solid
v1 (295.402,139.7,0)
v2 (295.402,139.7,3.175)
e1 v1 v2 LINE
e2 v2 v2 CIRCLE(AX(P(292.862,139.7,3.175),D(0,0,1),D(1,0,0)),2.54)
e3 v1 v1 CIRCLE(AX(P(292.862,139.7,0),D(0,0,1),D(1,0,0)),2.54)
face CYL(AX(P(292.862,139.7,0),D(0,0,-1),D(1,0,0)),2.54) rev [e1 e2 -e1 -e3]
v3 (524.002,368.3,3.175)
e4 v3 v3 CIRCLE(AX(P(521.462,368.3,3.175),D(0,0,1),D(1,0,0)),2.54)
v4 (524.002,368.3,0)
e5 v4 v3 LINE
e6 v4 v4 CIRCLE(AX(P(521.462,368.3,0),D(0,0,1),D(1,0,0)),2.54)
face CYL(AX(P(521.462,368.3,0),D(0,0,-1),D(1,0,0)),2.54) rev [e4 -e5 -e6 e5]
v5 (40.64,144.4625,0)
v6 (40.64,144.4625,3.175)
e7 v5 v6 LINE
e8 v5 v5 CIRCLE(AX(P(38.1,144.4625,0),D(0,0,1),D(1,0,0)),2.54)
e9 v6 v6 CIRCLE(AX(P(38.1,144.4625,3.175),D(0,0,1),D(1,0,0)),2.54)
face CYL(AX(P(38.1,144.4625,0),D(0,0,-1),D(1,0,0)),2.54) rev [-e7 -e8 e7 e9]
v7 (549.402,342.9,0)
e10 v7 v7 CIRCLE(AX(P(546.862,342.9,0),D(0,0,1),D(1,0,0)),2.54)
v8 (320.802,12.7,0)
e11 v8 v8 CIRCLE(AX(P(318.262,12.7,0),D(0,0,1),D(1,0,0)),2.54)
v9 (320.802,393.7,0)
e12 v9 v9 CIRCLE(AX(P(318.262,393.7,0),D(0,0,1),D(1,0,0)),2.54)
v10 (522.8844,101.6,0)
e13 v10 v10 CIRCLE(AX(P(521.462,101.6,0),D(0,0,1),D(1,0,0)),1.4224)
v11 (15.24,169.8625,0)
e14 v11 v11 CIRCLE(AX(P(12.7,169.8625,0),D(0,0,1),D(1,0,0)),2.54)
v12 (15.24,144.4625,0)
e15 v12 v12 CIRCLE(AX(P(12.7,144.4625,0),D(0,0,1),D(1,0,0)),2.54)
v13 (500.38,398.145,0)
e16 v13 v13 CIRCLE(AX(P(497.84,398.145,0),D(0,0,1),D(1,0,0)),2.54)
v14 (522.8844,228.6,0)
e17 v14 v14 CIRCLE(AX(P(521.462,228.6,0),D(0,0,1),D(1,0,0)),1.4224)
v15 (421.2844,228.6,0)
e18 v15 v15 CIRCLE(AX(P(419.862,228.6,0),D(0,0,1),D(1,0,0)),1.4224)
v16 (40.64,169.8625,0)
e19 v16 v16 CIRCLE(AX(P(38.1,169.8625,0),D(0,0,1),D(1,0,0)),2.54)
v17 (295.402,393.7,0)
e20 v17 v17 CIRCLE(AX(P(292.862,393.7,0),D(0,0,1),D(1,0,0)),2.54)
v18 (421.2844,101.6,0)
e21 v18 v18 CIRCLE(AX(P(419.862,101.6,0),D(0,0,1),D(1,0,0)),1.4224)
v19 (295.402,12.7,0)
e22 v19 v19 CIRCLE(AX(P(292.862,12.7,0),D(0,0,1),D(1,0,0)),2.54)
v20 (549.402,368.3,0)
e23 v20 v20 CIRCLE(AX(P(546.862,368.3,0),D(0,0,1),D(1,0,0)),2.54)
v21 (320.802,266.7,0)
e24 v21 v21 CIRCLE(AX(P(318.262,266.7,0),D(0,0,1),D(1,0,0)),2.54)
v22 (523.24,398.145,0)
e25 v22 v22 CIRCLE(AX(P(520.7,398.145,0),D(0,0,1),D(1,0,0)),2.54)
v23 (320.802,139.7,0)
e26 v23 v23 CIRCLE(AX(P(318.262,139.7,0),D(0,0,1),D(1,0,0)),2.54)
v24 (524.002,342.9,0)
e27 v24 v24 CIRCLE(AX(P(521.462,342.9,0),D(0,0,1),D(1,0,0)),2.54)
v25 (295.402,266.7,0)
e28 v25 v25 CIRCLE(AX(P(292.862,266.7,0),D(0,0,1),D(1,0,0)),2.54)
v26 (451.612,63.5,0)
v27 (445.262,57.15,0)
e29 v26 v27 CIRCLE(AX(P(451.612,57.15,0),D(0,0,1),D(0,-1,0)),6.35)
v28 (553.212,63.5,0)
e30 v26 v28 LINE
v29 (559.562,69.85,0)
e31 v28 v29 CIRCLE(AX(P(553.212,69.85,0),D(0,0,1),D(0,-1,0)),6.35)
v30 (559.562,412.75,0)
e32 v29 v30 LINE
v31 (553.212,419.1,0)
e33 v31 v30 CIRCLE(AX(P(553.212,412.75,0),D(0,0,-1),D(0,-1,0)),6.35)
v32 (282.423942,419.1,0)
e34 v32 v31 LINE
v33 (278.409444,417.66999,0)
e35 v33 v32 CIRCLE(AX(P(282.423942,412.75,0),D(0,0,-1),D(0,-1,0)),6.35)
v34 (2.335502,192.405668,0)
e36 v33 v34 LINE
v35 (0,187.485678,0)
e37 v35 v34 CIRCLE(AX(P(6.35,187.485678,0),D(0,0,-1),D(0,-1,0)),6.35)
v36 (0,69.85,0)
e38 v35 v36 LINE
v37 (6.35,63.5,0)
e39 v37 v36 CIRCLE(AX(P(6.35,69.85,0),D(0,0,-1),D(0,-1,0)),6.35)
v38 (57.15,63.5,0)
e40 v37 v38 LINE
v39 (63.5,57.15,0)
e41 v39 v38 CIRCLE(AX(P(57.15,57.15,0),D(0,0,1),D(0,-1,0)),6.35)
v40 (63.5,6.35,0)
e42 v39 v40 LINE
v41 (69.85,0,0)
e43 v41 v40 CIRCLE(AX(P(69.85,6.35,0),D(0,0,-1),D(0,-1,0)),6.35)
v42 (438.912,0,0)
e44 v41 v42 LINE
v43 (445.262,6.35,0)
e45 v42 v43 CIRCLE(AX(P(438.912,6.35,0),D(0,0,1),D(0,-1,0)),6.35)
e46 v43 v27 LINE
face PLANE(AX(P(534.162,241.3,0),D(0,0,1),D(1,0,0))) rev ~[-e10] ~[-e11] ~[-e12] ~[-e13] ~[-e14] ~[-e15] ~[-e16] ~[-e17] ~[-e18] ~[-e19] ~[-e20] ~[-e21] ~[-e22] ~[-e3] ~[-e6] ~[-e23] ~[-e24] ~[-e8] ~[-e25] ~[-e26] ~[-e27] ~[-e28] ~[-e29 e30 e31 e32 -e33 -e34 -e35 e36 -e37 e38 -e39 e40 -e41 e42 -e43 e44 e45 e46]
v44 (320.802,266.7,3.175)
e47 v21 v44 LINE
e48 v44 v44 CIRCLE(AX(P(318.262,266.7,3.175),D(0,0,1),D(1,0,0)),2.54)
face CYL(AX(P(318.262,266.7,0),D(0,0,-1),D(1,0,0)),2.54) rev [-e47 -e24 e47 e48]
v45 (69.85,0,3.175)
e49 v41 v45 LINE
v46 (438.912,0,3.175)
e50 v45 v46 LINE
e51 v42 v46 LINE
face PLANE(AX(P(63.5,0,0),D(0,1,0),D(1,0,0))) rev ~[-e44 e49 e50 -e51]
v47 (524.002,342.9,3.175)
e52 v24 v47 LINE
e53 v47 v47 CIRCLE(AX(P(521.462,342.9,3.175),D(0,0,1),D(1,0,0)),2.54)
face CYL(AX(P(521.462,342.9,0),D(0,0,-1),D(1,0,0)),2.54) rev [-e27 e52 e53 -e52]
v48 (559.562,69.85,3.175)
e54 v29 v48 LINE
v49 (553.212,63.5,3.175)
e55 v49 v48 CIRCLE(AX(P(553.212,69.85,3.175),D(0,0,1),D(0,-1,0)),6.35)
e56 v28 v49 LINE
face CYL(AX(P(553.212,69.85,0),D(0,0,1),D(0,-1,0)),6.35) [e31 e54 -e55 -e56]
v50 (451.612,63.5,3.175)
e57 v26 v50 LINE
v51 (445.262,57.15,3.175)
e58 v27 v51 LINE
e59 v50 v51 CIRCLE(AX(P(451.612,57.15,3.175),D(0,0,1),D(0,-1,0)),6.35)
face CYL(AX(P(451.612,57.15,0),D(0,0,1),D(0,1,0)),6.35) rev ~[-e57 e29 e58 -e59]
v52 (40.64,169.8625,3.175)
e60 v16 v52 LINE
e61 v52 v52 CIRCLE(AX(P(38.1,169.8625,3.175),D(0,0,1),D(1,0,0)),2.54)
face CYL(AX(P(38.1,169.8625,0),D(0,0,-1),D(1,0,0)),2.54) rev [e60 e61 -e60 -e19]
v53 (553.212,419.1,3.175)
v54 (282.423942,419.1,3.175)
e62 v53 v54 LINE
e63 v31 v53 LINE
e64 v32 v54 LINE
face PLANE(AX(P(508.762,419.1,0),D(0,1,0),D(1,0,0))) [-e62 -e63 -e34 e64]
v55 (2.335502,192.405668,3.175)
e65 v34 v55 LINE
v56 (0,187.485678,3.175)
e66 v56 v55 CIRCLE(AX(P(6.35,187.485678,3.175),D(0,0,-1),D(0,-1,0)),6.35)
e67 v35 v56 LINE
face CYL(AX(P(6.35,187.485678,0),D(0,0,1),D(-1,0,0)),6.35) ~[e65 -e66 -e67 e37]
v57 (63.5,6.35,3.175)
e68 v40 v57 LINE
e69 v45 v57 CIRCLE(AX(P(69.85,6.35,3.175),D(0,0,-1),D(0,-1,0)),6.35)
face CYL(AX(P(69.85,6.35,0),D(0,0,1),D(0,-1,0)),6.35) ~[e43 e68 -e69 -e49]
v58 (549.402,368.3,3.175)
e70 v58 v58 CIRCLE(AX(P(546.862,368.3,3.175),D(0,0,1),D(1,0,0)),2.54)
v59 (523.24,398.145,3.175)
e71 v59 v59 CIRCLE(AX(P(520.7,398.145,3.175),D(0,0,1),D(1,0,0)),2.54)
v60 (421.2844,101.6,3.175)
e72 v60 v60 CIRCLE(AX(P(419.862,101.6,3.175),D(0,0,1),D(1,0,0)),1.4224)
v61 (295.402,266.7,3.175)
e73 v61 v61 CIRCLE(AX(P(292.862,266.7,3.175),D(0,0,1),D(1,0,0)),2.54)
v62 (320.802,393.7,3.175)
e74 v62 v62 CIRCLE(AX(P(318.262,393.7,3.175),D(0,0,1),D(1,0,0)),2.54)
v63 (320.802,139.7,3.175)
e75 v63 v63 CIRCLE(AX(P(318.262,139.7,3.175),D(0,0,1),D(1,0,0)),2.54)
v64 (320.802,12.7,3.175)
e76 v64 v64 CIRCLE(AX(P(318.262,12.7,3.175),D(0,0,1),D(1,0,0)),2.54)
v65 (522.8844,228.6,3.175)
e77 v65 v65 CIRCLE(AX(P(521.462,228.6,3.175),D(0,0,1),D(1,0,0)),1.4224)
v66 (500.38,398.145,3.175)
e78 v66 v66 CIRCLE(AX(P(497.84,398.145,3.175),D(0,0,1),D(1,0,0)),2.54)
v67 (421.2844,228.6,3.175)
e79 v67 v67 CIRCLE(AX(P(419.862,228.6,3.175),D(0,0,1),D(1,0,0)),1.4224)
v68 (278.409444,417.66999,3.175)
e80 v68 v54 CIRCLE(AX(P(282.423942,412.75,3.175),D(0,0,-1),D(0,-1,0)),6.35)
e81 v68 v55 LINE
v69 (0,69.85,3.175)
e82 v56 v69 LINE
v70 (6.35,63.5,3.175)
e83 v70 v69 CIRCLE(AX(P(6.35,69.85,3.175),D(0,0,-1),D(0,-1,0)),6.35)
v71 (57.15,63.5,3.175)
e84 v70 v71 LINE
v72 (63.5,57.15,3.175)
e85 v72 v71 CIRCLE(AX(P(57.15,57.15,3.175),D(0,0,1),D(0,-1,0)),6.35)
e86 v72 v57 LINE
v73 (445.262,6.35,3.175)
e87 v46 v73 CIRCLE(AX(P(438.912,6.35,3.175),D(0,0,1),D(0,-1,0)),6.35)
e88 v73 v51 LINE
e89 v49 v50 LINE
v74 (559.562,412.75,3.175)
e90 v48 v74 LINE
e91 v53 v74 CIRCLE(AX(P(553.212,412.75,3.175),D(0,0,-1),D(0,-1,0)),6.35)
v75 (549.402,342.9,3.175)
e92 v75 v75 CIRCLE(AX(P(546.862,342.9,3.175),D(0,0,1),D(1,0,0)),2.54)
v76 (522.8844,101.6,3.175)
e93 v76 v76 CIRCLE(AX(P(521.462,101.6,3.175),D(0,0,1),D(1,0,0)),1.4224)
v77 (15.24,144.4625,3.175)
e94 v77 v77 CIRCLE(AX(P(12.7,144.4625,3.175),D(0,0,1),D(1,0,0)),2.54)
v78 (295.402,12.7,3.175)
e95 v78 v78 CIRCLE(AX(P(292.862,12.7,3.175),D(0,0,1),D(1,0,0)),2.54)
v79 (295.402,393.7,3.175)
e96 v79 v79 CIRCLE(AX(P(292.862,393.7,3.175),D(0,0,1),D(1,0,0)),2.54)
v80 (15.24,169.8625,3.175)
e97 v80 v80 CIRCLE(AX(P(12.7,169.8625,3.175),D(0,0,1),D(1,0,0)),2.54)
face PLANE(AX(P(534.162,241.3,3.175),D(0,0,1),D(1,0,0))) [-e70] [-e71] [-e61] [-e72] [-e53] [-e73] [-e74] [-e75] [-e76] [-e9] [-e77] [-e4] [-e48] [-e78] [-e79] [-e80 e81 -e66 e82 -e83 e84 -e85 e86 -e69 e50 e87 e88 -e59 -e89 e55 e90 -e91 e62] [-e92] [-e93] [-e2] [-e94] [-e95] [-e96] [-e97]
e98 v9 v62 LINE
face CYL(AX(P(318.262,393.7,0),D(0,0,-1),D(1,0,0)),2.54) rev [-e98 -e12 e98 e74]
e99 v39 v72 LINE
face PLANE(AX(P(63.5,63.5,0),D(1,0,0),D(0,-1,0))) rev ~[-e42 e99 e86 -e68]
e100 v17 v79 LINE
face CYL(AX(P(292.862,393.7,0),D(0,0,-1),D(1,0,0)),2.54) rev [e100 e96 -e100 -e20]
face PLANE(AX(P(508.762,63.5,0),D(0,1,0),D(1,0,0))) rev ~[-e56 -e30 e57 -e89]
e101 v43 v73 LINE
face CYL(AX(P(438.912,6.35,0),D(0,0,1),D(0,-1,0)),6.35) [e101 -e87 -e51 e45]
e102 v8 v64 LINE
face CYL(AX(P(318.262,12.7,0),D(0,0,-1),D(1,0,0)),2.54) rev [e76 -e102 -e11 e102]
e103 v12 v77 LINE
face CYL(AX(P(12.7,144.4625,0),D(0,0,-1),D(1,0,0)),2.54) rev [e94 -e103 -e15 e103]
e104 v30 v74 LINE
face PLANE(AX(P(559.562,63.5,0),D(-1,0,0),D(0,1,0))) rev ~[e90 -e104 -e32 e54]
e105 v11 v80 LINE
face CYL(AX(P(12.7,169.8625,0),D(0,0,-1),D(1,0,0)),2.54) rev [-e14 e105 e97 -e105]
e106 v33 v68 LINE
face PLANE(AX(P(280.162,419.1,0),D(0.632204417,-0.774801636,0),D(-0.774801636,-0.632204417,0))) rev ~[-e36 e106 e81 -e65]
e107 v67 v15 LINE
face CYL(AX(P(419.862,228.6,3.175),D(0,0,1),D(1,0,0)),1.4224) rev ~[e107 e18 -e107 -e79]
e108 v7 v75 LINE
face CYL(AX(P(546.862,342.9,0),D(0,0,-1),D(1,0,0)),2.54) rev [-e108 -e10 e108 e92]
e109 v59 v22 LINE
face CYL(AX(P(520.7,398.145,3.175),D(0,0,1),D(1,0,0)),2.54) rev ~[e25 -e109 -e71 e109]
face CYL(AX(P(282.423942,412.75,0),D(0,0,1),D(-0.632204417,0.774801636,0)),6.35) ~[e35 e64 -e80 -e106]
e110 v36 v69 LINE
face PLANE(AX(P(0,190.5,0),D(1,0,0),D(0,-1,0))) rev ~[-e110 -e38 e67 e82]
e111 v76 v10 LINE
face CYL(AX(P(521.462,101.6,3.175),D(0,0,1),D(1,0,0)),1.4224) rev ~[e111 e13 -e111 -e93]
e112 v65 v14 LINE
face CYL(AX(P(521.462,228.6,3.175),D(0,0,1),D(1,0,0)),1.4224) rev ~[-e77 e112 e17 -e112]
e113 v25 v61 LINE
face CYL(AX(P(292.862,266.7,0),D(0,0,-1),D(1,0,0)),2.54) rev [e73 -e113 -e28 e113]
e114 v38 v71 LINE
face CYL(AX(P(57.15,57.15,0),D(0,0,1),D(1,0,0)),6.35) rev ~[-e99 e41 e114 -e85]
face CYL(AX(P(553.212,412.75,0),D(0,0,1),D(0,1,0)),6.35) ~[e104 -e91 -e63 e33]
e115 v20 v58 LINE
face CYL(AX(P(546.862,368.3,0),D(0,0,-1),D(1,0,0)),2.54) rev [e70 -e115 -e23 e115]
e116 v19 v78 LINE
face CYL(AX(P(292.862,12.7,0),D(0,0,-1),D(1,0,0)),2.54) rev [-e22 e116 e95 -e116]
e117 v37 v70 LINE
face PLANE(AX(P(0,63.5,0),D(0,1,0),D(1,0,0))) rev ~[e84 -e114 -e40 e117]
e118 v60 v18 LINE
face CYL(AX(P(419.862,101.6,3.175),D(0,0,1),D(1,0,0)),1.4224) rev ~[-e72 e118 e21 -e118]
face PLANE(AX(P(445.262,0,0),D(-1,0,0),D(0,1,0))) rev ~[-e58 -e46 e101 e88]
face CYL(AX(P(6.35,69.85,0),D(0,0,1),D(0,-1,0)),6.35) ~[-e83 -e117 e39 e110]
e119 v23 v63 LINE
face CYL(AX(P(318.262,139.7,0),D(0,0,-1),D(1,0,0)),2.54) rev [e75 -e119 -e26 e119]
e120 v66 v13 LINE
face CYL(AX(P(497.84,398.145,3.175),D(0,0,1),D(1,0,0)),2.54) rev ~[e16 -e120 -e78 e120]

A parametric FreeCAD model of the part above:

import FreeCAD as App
import Part
import Sketcher
Q = App.Units.Quantity


def edges_at(feature, points):
    """Names of the edges that pass closest to the given points."""
    edges = feature.Shape.Edges
    near = lambda p: min(range(len(edges)), key=lambda i: edges[i].distToShape(Part.Vertex(*p))[0])
    return sorted({f"Edge{near(p) + 1}" for p in points})


def add_polygon(sketch, points):
    """Adds a closed chain of lines whose ends are joined by coincident constraints."""
    first, n = sketch.GeometryCount, len(points)
    for a, b in zip(points, points[1:] + points[:1]):
        sketch.addGeometry(Part.LineSegment(App.Vector(*a, 0), App.Vector(*b, 0)), False)
    for i in range(n):
        sketch.addConstraint(Sketcher.Constraint("Coincident", first + i, 2, first + (i + 1) % n, 1))

doc = App.newDocument("Part")
params = doc.addObject("Spreadsheet::Sheet", "Params")
for row, (alias, value) in enumerate([
    ("sketch1_diameter", "0.2 in"),
    ("sketch1_width", "11 in"),
    ("sketch1_height", "5 in"),
    ("sketch1_height2", "14 in"),
    ("sketch1_width2", "2.5 in"),
    ("pad1_length", "0.125 in"),
    ("fillet_radius", "0.25 in"),
    ("sketch2_diameter", "0.112 in"),
    ("sketch3_diameter", "0.2 in"),
], start=1):
    params.set(f"A{row}", alias)
    params.set(f"B{row}", "=" + value)
    params.setAlias(f"B{row}", alias)

body = doc.addObject("PartDesign::Body", "Body")

# Sketch on XY plane
sketch1 = body.newObject("Sketcher::SketchObject", "Sketch")
sketch1.AttachmentSupport = (doc.getObject("XY_Plane"), [""])
sketch1.MapMode = "FlatFace"
add_polygon(sketch1, [(0, 190.5), (0, 63.5), (63.5, 63.5), (63.5, 0), (445.3, 0), (445.3, 63.5), (559.6, 63.5), (559.6, 419.1), (280.2, 419.1)])  # lines 0-8
sketch1.addGeometry(Part.Circle(App.Vector(12.7, 144.5, 0), App.Vector(0, 0, 1), 2.5), False)  # 9
sketch1.addGeometry(Part.Circle(App.Vector(38.1, 144.5, 0), App.Vector(0, 0, 1), 2.5), False)  # 10
sketch1.addGeometry(Part.Circle(App.Vector(12.7, 169.9, 0), App.Vector(0, 0, 1), 2.5), False)  # 11
sketch1.addGeometry(Part.Circle(App.Vector(38.1, 169.9, 0), App.Vector(0, 0, 1), 2.5), False)  # 12
sketch1.addGeometry(Part.Circle(App.Vector(292.9, 12.7, 0), App.Vector(0, 0, 1), 2.5), False)  # 13
sketch1.addGeometry(Part.Circle(App.Vector(318.3, 12.7, 0), App.Vector(0, 0, 1), 2.5), False)  # 14
sketch1.addGeometry(Part.Circle(App.Vector(292.9, 139.7, 0), App.Vector(0, 0, 1), 2.5), False)  # 15
sketch1.addGeometry(Part.Circle(App.Vector(318.3, 139.7, 0), App.Vector(0, 0, 1), 2.5), False)  # 16
sketch1.addGeometry(Part.Circle(App.Vector(292.9, 266.7, 0), App.Vector(0, 0, 1), 2.5), False)  # 17
sketch1.addGeometry(Part.Circle(App.Vector(318.3, 266.7, 0), App.Vector(0, 0, 1), 2.5), False)  # 18
sketch1.addGeometry(Part.Circle(App.Vector(292.9, 393.7, 0), App.Vector(0, 0, 1), 2.5), False)  # 19
sketch1.addGeometry(Part.Circle(App.Vector(318.3, 393.7, 0), App.Vector(0, 0, 1), 2.5), False)  # 20
sketch1.addGeometry(Part.Circle(App.Vector(546.9, 368.3, 0), App.Vector(0, 0, 1), 2.5), False)  # 21
sketch1.addGeometry(Part.Circle(App.Vector(521.5, 342.9, 0), App.Vector(0, 0, 1), 2.5), False)  # 22
sketch1.addGeometry(Part.Circle(App.Vector(546.9, 342.9, 0), App.Vector(0, 0, 1), 2.5), False)  # 23
sketch1.addGeometry(Part.Circle(App.Vector(521.5, 368.3, 0), App.Vector(0, 0, 1), 2.5), False)  # 24
sketch1.addConstraint([
    Sketcher.Constraint("Vertical", 0),
    Sketcher.Constraint("Horizontal", 1),
    Sketcher.Constraint("Vertical", 2),
    Sketcher.Constraint("Horizontal", 3),
    Sketcher.Constraint("Vertical", 4),
    Sketcher.Constraint("Horizontal", 5),
    Sketcher.Constraint("Vertical", 6),
    Sketcher.Constraint("Horizontal", 7),
    Sketcher.Constraint("Equal", 9, 10),
    Sketcher.Constraint("Equal", 10, 11),
    Sketcher.Constraint("Equal", 11, 12),
    Sketcher.Constraint("Equal", 12, 13),
    Sketcher.Constraint("Equal", 13, 14),
    Sketcher.Constraint("Equal", 14, 15),
    Sketcher.Constraint("Equal", 15, 16),
    Sketcher.Constraint("Equal", 16, 17),
    Sketcher.Constraint("Equal", 17, 18),
    Sketcher.Constraint("Equal", 18, 19),
    Sketcher.Constraint("Equal", 19, 20),
    Sketcher.Constraint("Equal", 20, 21),
    Sketcher.Constraint("Equal", 21, 22),
    Sketcher.Constraint("Equal", 22, 23),
    Sketcher.Constraint("Equal", 23, 24),
    Sketcher.Constraint("PointOnObject", 0, 2, -2),
    Sketcher.Constraint("PointOnObject", 2, 2, -1),
    Sketcher.Constraint("Horizontal", 9, 3, 10, 3),
    Sketcher.Constraint("Horizontal", 11, 3, 12, 3),
    Sketcher.Constraint("Horizontal", 13, 3, 14, 3),
    Sketcher.Constraint("Horizontal", 15, 3, 16, 3),
    Sketcher.Constraint("Horizontal", 17, 3, 18, 3),
    Sketcher.Constraint("Horizontal", 19, 3, 20, 3),
    Sketcher.Constraint("Horizontal", 22, 3, 23, 3),
    Sketcher.Constraint("Horizontal", 21, 3, 24, 3),
    Sketcher.Constraint("Horizontal", 1, 2, 4, 2),
    Sketcher.Constraint("Vertical", 9, 3, 11, 3),
    Sketcher.Constraint("Vertical", 10, 3, 12, 3),
    Sketcher.Constraint("Vertical", 13, 3, 15, 3),
    Sketcher.Constraint("Vertical", 14, 3, 16, 3),
    Sketcher.Constraint("Vertical", 15, 3, 17, 3),
    Sketcher.Constraint("Vertical", 16, 3, 18, 3),
    Sketcher.Constraint("Vertical", 17, 3, 19, 3),
    Sketcher.Constraint("Vertical", 18, 3, 20, 3),
    Sketcher.Constraint("Vertical", 21, 3, 23, 3),
    Sketcher.Constraint("Vertical", 22, 3, 24, 3),
    Sketcher.Constraint("Equal", 1, 2),
    Sketcher.Constraint("Diameter", 9, Q("0.2 in")),
    Sketcher.Constraint("DistanceX", 7, 2, 7, 1, Q("11 in")),
    Sketcher.Constraint("DistanceY", 0, 2, 0, 1, Q("5 in")),
    Sketcher.Constraint("DistanceY", 6, 1, 6, 2, Q("14 in")),
    Sketcher.Constraint("DistanceX", 1, 1, 1, 2, Q("2.5 in")),
    Sketcher.Constraint("DistanceX", 5, 1, 5, 2, Q("4.5 in")),
    Sketcher.Constraint("DistanceX", 9, 3, 10, 3, Q("1 in")),
    Sketcher.Constraint("DistanceY", 9, 3, 11, 3, Q("1 in")),
    Sketcher.Constraint("DistanceX", 13, 3, 14, 3, Q("1 in")),
    Sketcher.Constraint("DistanceY", 13, 3, 15, 3, Q("5 in")),
    Sketcher.Constraint("DistanceY", 15, 3, 17, 3, Q("5 in")),
    Sketcher.Constraint("DistanceY", 17, 3, 19, 3, Q("5 in")),
    Sketcher.Constraint("DistanceX", 20, 3, 21, 3, Q("9 in")),
    Sketcher.Constraint("DistanceY", 21, 3, 20, 3, Q("1 in")),
    Sketcher.Constraint("DistanceX", 22, 3, 21, 3, Q("1 in")),
    Sketcher.Constraint("DistanceY", 22, 3, 21, 3, Q("1 in")),
    Sketcher.Constraint("DistanceY", 13, 3, 0, 2, Q("2 in")),
    Sketcher.Constraint("DistanceX", 10, 3, 1, 2, Q("1 in")),
    Sketcher.Constraint("DistanceX", 14, 3, 3, 2, Q("5 in")),
    Sketcher.Constraint("DistanceX", 3, 1, 3, 2, Q("15.03 in")),
    Sketcher.Constraint("DistanceY", -1, 1, 9, 3, Q("5.6875 in")),
])
sketch1.setExpression("Constraints[54]", "Params.sketch1_diameter")
sketch1.setExpression("Constraints[55]", "Params.sketch1_width")
sketch1.setExpression("Constraints[56]", "Params.sketch1_height")
sketch1.setExpression("Constraints[57]", "Params.sketch1_height2")
sketch1.setExpression("Constraints[58]", "Params.sketch1_width2")
pad1 = body.newObject("PartDesign::Pad", "Pad")
pad1.Profile = sketch1
pad1.setExpression("Length", "Params.pad1_length")
doc.recompute()

fillet = body.newObject("PartDesign::Fillet", "Fillet")
fillet.Base = (pad1, edges_at(pad1, [
    (280.162, 419.1, 1.587),
    (559.562, 419.1, 1.587),
    (559.562, 63.5, 1.587),
    (445.262, 63.5, 1.587),
    (445.262, 0, 1.587),
    (63.5, 0, 1.587),
    (63.5, 63.5, 1.587),
    (0, 63.5, 1.587),
    (0, 190.5, 1.587),
]))
fillet.setExpression("Radius", "Params.fillet_radius")

# Sketch on XY plane
sketch2 = body.newObject("Sketcher::SketchObject", "Sketch001")
sketch2.AttachmentSupport = (doc.getObject("XY_Plane"), [""])
sketch2.MapMode = "FlatFace"
sketch2.AttachmentOffset = App.Placement(App.Vector(0, 0, 0.125 * 25.4), App.Rotation())
sketch2.addGeometry([
    Part.Circle(App.Vector(521.5, 228.6, 0), App.Vector(0, 0, 1), 1.4),
    Part.Circle(App.Vector(419.9, 228.6, 0), App.Vector(0, 0, 1), 1.4),
    Part.Circle(App.Vector(419.9, 101.6, 0), App.Vector(0, 0, 1), 1.4),
    Part.Circle(App.Vector(521.5, 101.6, 0), App.Vector(0, 0, 1), 1.4),
], False)
sketch2.addConstraint([
    Sketcher.Constraint("Equal", 0, 1),
    Sketcher.Constraint("Equal", 1, 2),
    Sketcher.Constraint("Equal", 2, 3),
    Sketcher.Constraint("Horizontal", 0, 3, 1, 3),
    Sketcher.Constraint("Horizontal", 2, 3, 3, 3),
    Sketcher.Constraint("Vertical", 1, 3, 2, 3),
    Sketcher.Constraint("Vertical", 0, 3, 3, 3),
    Sketcher.Constraint("Diameter", 0, Q("0.112 in")),
    Sketcher.Constraint("DistanceY", -1, 1, 0, 3, Q("9 in")),
    Sketcher.Constraint("DistanceY", -1, 1, 2, 3, Q("4 in")),
    Sketcher.Constraint("DistanceX", 1, 3, 0, 3, Q("4 in")),
    Sketcher.Constraint("DistanceX", -1, 1, 0, 3, Q("20.53 in")),
])
sketch2.setExpression("Constraints[7]", "Params.sketch2_diameter")
pocket1 = body.newObject("PartDesign::Pocket", "Pocket")
pocket1.Profile = sketch2
pocket1.Type = "ThroughAll"

# Sketch on XY plane
sketch3 = body.newObject("Sketcher::SketchObject", "Sketch002")
sketch3.AttachmentSupport = (doc.getObject("XY_Plane"), [""])
sketch3.MapMode = "FlatFace"
sketch3.AttachmentOffset = App.Placement(App.Vector(0, 0, 0.125 * 25.4), App.Rotation())
sketch3.addGeometry([
    Part.Circle(App.Vector(520.7, 398.1, 0), App.Vector(0, 0, 1), 2.5),
    Part.Circle(App.Vector(497.8, 398.1, 0), App.Vector(0, 0, 1), 2.5),
], False)
sketch3.addConstraint([
    Sketcher.Constraint("Equal", 0, 1),
    Sketcher.Constraint("Horizontal", 0, 3, 1, 3),
    Sketcher.Constraint("Diameter", 0, Q("0.2 in")),
    Sketcher.Constraint("DistanceX", -1, 1, 0, 3, Q("20.5 in")),
    Sketcher.Constraint("DistanceX", -1, 1, 1, 3, Q("19.6 in")),
    Sketcher.Constraint("DistanceY", -1, 1, 0, 3, Q("15.675 in")),
])
sketch3.setExpression("Constraints[2]", "Params.sketch3_diameter")
pocket2 = body.newObject("PartDesign::Pocket", "Pocket001")
pocket2.Profile = sketch3
pocket2.Type = "ThroughAll"

doc.recompute()
